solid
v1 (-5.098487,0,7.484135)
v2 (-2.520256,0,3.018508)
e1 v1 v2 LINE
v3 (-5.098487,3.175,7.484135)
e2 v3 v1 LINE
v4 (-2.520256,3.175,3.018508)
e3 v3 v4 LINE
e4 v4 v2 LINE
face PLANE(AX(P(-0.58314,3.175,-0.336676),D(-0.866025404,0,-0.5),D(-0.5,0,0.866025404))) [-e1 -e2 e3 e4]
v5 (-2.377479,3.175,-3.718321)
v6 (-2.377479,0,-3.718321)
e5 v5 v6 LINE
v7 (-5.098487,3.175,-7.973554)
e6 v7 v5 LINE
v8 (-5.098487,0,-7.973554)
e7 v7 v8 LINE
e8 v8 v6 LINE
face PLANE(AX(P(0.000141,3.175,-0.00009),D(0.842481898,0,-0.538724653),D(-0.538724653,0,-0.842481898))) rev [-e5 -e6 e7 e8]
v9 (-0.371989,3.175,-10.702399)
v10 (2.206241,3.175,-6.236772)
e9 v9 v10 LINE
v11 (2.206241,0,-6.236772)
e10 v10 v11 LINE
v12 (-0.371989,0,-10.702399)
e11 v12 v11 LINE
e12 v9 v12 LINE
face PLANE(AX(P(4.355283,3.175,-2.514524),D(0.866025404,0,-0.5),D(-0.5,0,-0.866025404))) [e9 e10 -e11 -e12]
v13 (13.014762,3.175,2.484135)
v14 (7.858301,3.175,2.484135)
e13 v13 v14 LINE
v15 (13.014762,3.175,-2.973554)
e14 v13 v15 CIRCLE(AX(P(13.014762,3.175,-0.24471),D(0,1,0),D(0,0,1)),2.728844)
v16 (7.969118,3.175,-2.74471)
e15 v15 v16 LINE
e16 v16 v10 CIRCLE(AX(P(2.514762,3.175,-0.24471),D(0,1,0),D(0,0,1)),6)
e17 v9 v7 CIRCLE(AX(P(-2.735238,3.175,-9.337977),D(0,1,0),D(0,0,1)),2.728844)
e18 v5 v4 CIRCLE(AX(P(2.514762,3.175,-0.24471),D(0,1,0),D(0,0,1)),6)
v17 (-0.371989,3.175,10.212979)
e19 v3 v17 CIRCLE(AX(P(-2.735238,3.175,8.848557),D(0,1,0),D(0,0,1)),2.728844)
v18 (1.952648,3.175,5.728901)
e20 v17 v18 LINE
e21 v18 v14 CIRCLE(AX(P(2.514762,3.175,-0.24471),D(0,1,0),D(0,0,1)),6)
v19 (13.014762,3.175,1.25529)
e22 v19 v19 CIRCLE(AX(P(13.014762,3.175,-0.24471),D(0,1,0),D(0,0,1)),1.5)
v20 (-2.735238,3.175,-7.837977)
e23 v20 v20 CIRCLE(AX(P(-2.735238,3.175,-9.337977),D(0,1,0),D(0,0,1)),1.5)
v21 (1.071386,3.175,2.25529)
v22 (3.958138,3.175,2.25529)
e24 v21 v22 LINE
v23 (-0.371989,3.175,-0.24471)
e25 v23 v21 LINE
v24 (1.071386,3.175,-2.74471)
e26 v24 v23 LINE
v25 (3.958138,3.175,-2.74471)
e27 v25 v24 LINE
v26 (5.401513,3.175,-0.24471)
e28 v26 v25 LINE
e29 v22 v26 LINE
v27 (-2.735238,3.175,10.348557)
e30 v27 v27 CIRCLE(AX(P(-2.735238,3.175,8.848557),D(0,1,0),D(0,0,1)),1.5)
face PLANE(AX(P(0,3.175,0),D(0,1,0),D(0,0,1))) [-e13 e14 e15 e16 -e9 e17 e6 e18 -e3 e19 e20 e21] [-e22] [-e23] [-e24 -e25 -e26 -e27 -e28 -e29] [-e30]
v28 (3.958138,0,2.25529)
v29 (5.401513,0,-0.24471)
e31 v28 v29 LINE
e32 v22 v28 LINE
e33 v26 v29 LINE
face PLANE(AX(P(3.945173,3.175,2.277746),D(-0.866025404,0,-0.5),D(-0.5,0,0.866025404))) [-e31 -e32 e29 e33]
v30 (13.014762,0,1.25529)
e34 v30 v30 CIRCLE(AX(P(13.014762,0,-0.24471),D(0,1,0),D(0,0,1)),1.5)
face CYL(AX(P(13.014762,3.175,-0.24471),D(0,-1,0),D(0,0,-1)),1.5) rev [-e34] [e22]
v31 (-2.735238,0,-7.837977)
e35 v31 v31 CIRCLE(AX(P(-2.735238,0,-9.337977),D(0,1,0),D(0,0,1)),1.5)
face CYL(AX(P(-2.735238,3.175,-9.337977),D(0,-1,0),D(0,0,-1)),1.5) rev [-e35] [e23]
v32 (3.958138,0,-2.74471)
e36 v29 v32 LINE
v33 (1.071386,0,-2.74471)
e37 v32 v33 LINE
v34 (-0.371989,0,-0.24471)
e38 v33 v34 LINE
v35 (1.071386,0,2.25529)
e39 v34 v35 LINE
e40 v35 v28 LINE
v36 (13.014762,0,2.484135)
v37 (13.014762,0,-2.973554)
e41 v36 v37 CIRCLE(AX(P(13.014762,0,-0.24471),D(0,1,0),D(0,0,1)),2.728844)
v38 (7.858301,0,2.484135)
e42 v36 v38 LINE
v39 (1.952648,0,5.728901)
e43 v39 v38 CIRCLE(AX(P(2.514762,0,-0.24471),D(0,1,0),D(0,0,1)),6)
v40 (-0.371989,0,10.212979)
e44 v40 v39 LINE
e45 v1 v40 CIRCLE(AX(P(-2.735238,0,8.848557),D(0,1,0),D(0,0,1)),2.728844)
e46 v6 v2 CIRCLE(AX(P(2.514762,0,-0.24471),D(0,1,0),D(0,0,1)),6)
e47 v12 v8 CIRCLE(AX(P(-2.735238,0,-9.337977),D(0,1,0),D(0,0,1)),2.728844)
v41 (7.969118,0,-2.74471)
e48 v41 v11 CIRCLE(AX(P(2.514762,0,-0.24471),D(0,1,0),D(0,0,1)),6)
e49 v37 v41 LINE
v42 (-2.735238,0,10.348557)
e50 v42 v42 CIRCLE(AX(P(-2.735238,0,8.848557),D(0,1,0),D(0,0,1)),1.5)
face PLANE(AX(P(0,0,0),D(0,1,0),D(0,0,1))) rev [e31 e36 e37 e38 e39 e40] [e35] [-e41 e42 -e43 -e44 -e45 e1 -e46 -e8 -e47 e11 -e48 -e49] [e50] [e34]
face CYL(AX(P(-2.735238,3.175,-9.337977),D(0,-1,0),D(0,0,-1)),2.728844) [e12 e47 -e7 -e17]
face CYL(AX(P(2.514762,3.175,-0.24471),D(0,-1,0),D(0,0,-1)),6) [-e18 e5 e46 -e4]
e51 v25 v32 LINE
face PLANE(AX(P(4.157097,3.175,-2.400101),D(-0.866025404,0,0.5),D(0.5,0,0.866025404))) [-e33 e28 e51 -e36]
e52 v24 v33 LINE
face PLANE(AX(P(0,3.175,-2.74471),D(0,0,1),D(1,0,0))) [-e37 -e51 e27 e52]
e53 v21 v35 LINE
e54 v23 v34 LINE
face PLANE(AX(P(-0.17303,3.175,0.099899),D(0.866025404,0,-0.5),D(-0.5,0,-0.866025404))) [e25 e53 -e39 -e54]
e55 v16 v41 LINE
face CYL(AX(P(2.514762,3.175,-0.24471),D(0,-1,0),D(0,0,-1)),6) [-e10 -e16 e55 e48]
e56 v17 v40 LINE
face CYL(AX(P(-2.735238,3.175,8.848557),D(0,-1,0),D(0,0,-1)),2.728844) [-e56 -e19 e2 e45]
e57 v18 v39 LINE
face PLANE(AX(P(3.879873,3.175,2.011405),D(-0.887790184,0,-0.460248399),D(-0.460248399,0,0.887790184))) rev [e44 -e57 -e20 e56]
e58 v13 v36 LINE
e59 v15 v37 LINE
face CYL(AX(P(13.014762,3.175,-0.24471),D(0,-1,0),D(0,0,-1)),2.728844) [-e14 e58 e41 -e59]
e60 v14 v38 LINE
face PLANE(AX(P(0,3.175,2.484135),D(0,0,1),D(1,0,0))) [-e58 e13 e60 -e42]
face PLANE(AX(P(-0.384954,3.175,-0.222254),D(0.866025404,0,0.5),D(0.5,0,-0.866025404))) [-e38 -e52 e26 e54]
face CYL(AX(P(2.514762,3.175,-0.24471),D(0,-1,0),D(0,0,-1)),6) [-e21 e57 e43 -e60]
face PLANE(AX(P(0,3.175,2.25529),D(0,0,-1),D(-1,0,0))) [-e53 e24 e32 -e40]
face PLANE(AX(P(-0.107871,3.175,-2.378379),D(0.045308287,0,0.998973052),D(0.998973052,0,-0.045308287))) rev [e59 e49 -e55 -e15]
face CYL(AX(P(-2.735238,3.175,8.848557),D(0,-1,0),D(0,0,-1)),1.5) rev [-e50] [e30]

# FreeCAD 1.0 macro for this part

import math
import FreeCAD as App
import Part
import Sketcher
from FreeCAD import Vector
Q = App.Units.Quantity


def add_polygon(sketch, points):
    """Adds a closed chain of lines whose ends are joined by coincident constraints."""
    first, n = sketch.GeometryCount, len(points)
    for a, b in zip(points, points[1:] + points[:1]):
        sketch.addGeometry(Part.LineSegment(App.Vector(*a, 0), App.Vector(*b, 0)), False)
    for i in range(n):
        sketch.addConstraint(Sketcher.Constraint("Coincident", first + i, 2, first + (i + 1) % n, 1))

doc = App.newDocument("Part")
body = doc.addObject("PartDesign::Body", "Body")

# Sketch on XZ plane
sketch1 = body.newObject("Sketcher::SketchObject", "Sketch")
sketch1.AttachmentSupport = (doc.getObject("XZ_Plane"), [""])
sketch1.MapMode = "FlatFace"
sketch1.addGeometry(Part.LineSegment(Vector(7.858301, 2.484135, 0), Vector(13.014762, 2.484135, 0)), False)  # 0
sketch1.addGeometry(Part.ArcOfCircle(Part.Circle(Vector(13.014762, -0.24471, 0), Vector(0, 0, 1), 2.728844), math.radians(-90), math.radians(90)), False)  # 1
sketch1.addGeometry(Part.LineSegment(Vector(13.014762, -2.973554, 0), Vector(7.969118, -2.74471, 0)), False)  # 2
sketch1.addGeometry(Part.ArcOfCircle(Part.Circle(Vector(2.514762, -0.24471, 0), Vector(0, 0, 1), 6), math.radians(-92.947456), math.radians(-24.624318)), False)  # 3
sketch1.addGeometry(Part.LineSegment(Vector(2.206241, -6.236772, 0), Vector(-0.371989, -10.702399, 0)), False)  # 4
sketch1.addGeometry(Part.ArcOfCircle(Part.Circle(Vector(-2.735238, -9.337977, 0), Vector(0, 0, 1), 2.728844), math.radians(150), math.radians(330)), False)  # 5
sketch1.addGeometry(Part.LineSegment(Vector(-5.098487, -7.973554, 0), Vector(-2.377479, -3.718321, 0)), False)  # 6
sketch1.addGeometry(Part.ArcOfCircle(Part.Circle(Vector(2.514762, -0.24471, 0), Vector(0, 0, 1), 6), math.radians(147.052544), math.radians(215.375682)), False)  # 7
sketch1.addGeometry(Part.LineSegment(Vector(-2.520256, 3.018508, 0), Vector(-5.098487, 7.484135, 0)), False)  # 8
sketch1.addGeometry(Part.ArcOfCircle(Part.Circle(Vector(-2.735238, 8.848557, 0), Vector(0, 0, 1), 2.728844), math.radians(30), math.radians(210)), False)  # 9
sketch1.addGeometry(Part.LineSegment(Vector(-0.371989, 10.212979, 0), Vector(1.952648, 5.728901, 0)), False)  # 10
sketch1.addGeometry(Part.ArcOfCircle(Part.Circle(Vector(2.514762, -0.24471, 0), Vector(0, 0, 1), 6), math.radians(27.052544), math.radians(95.375682)), False)  # 11
sketch1.addGeometry(Part.Circle(Vector(-2.735238, 8.848557, 0), Vector(0, 0, 1), 1.5), False)  # 12
add_polygon(sketch1, [(1.071386, -2.74471), (3.958138, -2.74471), (5.401513, -0.24471), (3.958138, 2.25529), (1.071386, 2.25529), (-0.371989, -0.24471)])  # lines 13-18
sketch1.addGeometry(Part.Circle(Vector(-2.735238, -9.337977, 0), Vector(0, 0, 1), 1.5), False)  # 19
sketch1.addGeometry(Part.Circle(Vector(13.014762, -0.24471, 0), Vector(0, 0, 1), 1.5), False)  # 20
sketch1.addConstraint(Sketcher.Constraint("Tangent", 0, 2, 1, 2))
sketch1.addConstraint(Sketcher.Constraint("Coincident", 1, 1, 2, 1))
sketch1.addConstraint(Sketcher.Constraint("Coincident", 2, 2, 3, 2))
sketch1.addConstraint(Sketcher.Constraint("Coincident", 3, 1, 4, 1))
sketch1.addConstraint(Sketcher.Constraint("Tangent", 4, 2, 5, 2))
sketch1.addConstraint(Sketcher.Constraint("Coincident", 5, 1, 6, 1))
sketch1.addConstraint(Sketcher.Constraint("Coincident", 6, 2, 7, 2))
sketch1.addConstraint(Sketcher.Constraint("Coincident", 7, 1, 8, 1))
sketch1.addConstraint(Sketcher.Constraint("Tangent", 8, 2, 9, 2))
sketch1.addConstraint(Sketcher.Constraint("Coincident", 9, 1, 10, 1))
sketch1.addConstraint(Sketcher.Constraint("Coincident", 10, 2, 11, 2))
sketch1.addConstraint(Sketcher.Constraint("Coincident", 11, 1, 0, 1))
sketch1.addConstraint(Sketcher.Constraint("Horizontal", 0))
sketch1.addConstraint(Sketcher.Constraint("Horizontal", 13))
sketch1.addConstraint(Sketcher.Constraint("Horizontal", 16))
sketch1.addConstraint(Sketcher.Constraint("Coincident", 7, 3, 3, 3))
sketch1.addConstraint(Sketcher.Constraint("Coincident", 11, 3, 3, 3))
sketch1.addConstraint(Sketcher.Constraint("Coincident", 12, 3, 9, 3))
sketch1.addConstraint(Sketcher.Constraint("Coincident", 19, 3, 5, 3))
sketch1.addConstraint(Sketcher.Constraint("Coincident", 20, 3, 1, 3))
sketch1.addConstraint(Sketcher.Constraint("Equal", 1, 5))
sketch1.addConstraint(Sketcher.Constraint("Equal", 3, 7))
sketch1.addConstraint(Sketcher.Constraint("Equal", 5, 9))
sketch1.addConstraint(Sketcher.Constraint("Equal", 7, 11))
sketch1.addConstraint(Sketcher.Constraint("Equal", 12, 19))
sketch1.addConstraint(Sketcher.Constraint("Equal", 19, 20))
sketch1.addConstraint(Sketcher.Constraint("Parallel", 4, 14))
sketch1.addConstraint(Sketcher.Constraint("Parallel", 8, 15))
sketch1.addConstraint(Sketcher.Constraint("Parallel", 14, 17))
sketch1.addConstraint(Sketcher.Constraint("Parallel", 15, 18))
sketch1.addConstraint(Sketcher.Constraint("Horizontal", 1, 3, 3, 3))
sketch1.addConstraint(Sketcher.Constraint("Horizontal", 2, 2, 13, 2))
sketch1.addConstraint(Sketcher.Constraint("Horizontal", 20, 3, 14, 2))
sketch1.addConstraint(Sketcher.Constraint("Horizontal", 14, 2, 17, 2))
sketch1.addConstraint(Sketcher.Constraint("Vertical", 5, 3, 9, 3))
sketch1.addConstraint(Sketcher.Constraint("Vertical", 0, 2, 1, 1))
sketch1.addConstraint(Sketcher.Constraint("Vertical", 5, 1, 8, 2))
sketch1.addConstraint(Sketcher.Constraint("Vertical", 4, 2, 9, 1))
sketch1.addConstraint(Sketcher.Constraint("Vertical", 13, 2, 15, 2))
sketch1.addConstraint(Sketcher.Constraint("Vertical", 9, 1, 17, 2))
sketch1.addConstraint(Sketcher.Constraint("Vertical", 16, 2, 18, 2))
sketch1.addConstraint(Sketcher.Constraint("Equal", 2, 6))
sketch1.addConstraint(Sketcher.Constraint("Equal", 4, 8))
sketch1.addConstraint(Sketcher.Constraint("Equal", 6, 10))
sketch1.addConstraint(Sketcher.Constraint("Diameter", 12, Q("3 mm")))
sketch1.addConstraint(Sketcher.Constraint("Radius", 3, Q("6 mm")))
sketch1.addConstraint(Sketcher.Constraint("Angle", 4, Q("-120 deg")))
sketch1.addConstraint(Sketcher.Constraint("DistanceX", 3, 3, 1, 3, Q("10.5 mm")))
sketch1.addConstraint(Sketcher.Constraint("DistanceY", 2, 2, 1, 3, Q("2.5 mm")))
sketch1.addConstraint(Sketcher.Constraint("DistanceX", 5, 3, 3, 3, Q("5.25 mm")))
sketch1.addConstraint(Sketcher.Constraint("Radius", 1, Q("2.728844 mm")))
sketch1.addConstraint(Sketcher.Constraint("DistanceX", 13, 1, 13, 2, Q("2.886751 mm")))
sketch1.addConstraint(Sketcher.Constraint("DistanceY", 4, 2, -1, 1, Q("10.702399 mm")))
sketch1.addConstraint(Sketcher.Constraint("DistanceY", -1, 1, 10, 2, Q("5.728901 mm")))
sketch1.addConstraint(Sketcher.Constraint("DistanceX", -1, 1, 11, 1, Q("7.858301 mm")))
pad1 = body.newObject("PartDesign::Pad", "Pad")
pad1.Profile = sketch1
pad1.Length = 3.175
pad1.Reversed = True

doc.recompute()
